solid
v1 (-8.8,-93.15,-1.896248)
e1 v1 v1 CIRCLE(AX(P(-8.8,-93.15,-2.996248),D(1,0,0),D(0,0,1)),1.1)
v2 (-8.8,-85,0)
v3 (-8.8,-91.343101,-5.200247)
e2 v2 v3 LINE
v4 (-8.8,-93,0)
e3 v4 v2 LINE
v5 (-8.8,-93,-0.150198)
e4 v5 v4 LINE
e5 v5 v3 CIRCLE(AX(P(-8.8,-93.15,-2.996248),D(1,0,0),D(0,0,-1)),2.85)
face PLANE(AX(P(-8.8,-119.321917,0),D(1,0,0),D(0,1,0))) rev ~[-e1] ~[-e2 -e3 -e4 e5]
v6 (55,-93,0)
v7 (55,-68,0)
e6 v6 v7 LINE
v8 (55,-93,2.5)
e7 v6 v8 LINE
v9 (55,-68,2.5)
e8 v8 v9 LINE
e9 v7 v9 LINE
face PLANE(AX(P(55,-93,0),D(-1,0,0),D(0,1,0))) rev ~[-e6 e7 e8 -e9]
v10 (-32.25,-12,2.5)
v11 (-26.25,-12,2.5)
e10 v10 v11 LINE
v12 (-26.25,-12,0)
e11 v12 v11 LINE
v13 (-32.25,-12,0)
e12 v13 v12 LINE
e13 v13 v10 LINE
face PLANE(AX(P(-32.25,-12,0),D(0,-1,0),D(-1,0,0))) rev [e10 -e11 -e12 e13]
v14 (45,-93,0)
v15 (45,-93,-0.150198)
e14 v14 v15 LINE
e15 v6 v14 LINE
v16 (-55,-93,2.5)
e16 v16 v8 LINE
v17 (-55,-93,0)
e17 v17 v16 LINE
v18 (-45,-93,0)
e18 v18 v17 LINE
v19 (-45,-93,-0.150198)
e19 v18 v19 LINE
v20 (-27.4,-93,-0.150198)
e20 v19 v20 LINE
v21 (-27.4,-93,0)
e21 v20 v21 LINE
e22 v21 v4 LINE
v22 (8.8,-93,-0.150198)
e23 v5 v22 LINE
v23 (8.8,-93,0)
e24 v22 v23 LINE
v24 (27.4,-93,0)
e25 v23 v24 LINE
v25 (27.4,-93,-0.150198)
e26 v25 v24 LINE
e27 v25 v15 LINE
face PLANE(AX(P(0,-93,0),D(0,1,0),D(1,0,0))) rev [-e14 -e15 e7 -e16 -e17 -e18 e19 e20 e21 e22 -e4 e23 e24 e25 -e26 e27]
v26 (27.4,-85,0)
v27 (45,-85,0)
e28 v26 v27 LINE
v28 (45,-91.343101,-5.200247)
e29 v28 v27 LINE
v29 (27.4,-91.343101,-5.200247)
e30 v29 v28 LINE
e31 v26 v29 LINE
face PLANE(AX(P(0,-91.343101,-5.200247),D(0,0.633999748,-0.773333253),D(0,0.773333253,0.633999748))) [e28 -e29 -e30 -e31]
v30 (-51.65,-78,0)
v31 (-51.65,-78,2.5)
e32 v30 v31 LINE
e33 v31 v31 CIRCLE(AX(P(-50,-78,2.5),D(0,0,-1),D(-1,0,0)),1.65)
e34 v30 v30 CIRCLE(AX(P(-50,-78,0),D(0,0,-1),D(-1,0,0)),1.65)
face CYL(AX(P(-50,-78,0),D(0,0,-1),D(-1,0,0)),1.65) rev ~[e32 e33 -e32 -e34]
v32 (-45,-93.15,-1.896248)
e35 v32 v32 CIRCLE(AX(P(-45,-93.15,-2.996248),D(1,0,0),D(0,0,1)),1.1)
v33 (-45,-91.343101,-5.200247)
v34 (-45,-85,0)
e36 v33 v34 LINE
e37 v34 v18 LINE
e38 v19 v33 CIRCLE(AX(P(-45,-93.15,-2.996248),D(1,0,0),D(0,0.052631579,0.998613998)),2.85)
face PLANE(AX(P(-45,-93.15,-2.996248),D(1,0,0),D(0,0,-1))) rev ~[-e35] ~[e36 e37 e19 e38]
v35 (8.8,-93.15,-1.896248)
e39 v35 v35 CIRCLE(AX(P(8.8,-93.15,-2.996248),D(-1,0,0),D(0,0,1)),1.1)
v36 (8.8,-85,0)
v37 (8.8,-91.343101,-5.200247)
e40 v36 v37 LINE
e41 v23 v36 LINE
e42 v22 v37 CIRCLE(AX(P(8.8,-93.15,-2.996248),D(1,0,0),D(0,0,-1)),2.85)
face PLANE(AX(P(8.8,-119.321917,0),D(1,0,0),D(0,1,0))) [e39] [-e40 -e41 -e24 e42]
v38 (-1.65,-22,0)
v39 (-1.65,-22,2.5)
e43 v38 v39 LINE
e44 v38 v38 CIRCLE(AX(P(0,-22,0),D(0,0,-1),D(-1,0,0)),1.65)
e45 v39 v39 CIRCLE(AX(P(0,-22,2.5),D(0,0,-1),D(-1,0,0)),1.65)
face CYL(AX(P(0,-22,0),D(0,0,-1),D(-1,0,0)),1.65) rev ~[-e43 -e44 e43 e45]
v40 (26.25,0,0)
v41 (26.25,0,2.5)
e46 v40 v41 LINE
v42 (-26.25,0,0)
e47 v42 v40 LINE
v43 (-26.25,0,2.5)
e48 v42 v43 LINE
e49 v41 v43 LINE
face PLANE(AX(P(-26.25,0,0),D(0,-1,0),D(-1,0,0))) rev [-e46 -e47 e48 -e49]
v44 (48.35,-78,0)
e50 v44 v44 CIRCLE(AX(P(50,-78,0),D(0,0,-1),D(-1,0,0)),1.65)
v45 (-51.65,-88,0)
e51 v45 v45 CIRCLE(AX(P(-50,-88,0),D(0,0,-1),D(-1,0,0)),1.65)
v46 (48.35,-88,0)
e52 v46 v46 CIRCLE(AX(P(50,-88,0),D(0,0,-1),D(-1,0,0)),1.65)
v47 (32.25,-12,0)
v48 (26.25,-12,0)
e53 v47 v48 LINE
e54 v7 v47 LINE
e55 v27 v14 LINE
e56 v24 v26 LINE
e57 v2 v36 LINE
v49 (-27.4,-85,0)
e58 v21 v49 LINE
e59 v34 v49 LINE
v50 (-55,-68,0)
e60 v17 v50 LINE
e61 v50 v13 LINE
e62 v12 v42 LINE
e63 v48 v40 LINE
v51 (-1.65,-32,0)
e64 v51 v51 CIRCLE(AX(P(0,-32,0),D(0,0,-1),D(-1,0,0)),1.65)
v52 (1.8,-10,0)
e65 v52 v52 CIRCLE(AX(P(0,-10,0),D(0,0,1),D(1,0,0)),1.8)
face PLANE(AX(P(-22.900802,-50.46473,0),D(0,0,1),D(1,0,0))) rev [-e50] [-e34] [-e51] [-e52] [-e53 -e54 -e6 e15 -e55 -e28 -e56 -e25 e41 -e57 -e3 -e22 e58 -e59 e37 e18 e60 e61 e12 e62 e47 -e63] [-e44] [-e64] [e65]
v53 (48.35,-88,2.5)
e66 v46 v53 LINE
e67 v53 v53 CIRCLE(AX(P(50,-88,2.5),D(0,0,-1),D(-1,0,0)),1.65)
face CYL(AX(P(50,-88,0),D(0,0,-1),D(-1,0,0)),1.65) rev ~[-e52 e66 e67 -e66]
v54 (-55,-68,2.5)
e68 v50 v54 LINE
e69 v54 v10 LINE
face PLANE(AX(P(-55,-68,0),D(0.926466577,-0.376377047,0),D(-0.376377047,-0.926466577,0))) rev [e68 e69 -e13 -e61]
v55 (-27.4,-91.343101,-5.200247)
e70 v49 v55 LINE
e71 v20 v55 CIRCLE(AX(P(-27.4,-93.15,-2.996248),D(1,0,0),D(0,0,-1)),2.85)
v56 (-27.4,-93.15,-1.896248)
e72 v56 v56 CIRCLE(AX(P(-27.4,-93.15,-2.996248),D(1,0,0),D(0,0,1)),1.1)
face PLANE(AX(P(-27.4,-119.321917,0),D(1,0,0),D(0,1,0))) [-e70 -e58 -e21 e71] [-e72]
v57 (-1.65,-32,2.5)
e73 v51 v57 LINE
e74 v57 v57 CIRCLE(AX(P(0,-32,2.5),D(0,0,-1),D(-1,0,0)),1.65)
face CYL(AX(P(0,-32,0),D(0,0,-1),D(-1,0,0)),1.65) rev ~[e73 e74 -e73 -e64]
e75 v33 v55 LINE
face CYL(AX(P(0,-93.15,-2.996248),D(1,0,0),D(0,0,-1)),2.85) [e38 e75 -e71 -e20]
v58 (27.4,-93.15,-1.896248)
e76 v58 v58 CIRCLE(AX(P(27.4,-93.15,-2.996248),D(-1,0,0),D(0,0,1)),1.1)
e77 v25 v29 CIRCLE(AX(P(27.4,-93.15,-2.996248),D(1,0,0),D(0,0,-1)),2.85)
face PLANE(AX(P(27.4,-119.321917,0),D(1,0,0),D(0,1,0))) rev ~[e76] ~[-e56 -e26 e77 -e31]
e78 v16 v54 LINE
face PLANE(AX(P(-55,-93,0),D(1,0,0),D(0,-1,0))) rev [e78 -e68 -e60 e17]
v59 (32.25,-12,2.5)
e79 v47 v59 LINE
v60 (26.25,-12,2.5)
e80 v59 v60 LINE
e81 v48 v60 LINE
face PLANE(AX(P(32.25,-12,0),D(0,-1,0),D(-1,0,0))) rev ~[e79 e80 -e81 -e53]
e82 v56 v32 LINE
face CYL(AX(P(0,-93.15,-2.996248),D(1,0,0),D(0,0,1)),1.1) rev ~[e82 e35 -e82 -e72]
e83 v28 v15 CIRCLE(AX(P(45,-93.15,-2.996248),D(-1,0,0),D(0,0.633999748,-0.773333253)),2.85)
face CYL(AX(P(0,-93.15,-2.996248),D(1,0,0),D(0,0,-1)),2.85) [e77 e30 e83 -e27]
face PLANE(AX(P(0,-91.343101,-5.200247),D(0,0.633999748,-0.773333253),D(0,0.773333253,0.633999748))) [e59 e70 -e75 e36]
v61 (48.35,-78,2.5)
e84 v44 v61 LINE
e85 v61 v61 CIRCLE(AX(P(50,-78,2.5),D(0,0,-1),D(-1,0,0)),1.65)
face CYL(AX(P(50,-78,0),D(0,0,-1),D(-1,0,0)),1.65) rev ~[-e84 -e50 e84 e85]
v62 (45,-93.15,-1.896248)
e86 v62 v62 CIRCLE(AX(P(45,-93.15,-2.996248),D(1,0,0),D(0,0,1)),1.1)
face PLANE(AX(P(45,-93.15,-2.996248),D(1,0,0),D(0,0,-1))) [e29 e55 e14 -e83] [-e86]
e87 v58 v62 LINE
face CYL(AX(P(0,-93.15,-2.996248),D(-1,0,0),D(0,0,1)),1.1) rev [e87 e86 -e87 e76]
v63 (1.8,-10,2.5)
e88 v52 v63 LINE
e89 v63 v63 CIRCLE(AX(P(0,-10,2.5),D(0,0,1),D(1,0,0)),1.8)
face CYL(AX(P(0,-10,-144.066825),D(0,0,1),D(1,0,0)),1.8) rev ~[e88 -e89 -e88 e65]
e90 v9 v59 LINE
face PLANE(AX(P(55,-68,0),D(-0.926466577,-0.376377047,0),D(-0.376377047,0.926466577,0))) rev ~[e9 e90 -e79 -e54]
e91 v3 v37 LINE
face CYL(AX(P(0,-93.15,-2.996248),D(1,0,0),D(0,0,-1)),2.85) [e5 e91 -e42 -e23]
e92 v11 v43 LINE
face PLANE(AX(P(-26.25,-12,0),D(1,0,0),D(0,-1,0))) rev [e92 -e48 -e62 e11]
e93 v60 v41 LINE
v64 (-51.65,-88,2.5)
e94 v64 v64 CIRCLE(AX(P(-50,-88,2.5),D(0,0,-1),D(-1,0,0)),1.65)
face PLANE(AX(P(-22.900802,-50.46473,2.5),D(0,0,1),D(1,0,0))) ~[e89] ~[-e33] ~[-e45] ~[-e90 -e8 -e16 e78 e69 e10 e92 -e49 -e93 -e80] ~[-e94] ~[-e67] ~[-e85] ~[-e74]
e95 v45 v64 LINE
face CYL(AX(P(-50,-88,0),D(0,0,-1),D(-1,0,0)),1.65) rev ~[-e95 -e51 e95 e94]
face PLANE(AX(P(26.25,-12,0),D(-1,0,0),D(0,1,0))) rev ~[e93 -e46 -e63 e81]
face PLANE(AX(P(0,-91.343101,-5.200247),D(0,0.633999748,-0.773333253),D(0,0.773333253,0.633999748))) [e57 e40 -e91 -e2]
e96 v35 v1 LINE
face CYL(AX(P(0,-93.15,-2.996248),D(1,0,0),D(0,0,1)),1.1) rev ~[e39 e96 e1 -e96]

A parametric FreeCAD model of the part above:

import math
import FreeCAD as App
import Part
import Sketcher
from FreeCAD import Vector
Q = App.Units.Quantity

doc = App.newDocument("Part")
body = doc.addObject("PartDesign::Body", "Body")

# Sketch on XY plane
sketch1 = body.newObject("Sketcher::SketchObject", "Sketch")
sketch1.AttachmentSupport = (doc.getObject("XY_Plane"), [""])
sketch1.MapMode = "FlatFace"
sketch1.addGeometry([
    Part.LineSegment(Vector(55, -68, 0), Vector(32, -12, 0)),  # 0
    Part.LineSegment(Vector(32, -12, 0), Vector(26, -12, 0)),  # 1
    Part.LineSegment(Vector(26, -12, 0), Vector(26, 0, 0)),  # 2
    Part.LineSegment(Vector(26, 0, 0), Vector(0, 0, 0)),  # 3
    Part.LineSegment(Vector(0, 0, 0), Vector(0, -93, 0)),  # 4
    Part.LineSegment(Vector(0, -93, 0), Vector(55, -93, 0)),  # 5
    Part.LineSegment(Vector(55, -93, 0), Vector(55, -68, 0)),  # 6
], False)
sketch1.addConstraint([
    Sketcher.Constraint("Coincident", 0, 2, 1, 1),
    Sketcher.Constraint("Coincident", 1, 2, 2, 1),
    Sketcher.Constraint("Coincident", 2, 2, 3, 1),
    Sketcher.Constraint("Coincident", 3, 2, 4, 1),
    Sketcher.Constraint("Coincident", 4, 2, 5, 1),
    Sketcher.Constraint("Coincident", 5, 2, 6, 1),
    Sketcher.Constraint("Coincident", 6, 2, 0, 1),
    Sketcher.Constraint("Horizontal", 1),
    Sketcher.Constraint("Vertical", 2),
    Sketcher.Constraint("Horizontal", 3),
    Sketcher.Constraint("Vertical", 4),
    Sketcher.Constraint("Horizontal", 5),
    Sketcher.Constraint("Vertical", 6),
    Sketcher.Constraint("Coincident", 3, 2, -1, 1),
    Sketcher.Constraint("DistanceX", 1, 2, 1, 1, Q("6 mm")),
    Sketcher.Constraint("DistanceX", 5, 1, 5, 2, Q("55 mm")),
    Sketcher.Constraint("DistanceY", 2, 1, 2, 2, Q("12 mm")),
    Sketcher.Constraint("DistanceY", 4, 2, 4, 1, Q("93 mm")),
    Sketcher.Constraint("DistanceY", 6, 1, 6, 2, Q("25 mm")),
    Sketcher.Constraint("DistanceX", 3, 2, 3, 1, Q("26.25 mm")),
])
pad1 = body.newObject("PartDesign::Pad", "Pad")
pad1.Profile = sketch1
pad1.Length = 2.5
doc.recompute()

mirrored = body.newObject("PartDesign::Mirrored", "Mirrored")
mirrored.Originals = [pad1]
mirrored.MirrorPlane = (doc.getObject("YZ_Plane"), [""])
body.Tip = mirrored

# Sketch on XY plane
sketch2 = body.newObject("Sketcher::SketchObject", "Sketch001")
sketch2.AttachmentSupport = (doc.getObject("XY_Plane"), [""])
sketch2.MapMode = "FlatFace"
sketch2.addGeometry(Part.Circle(Vector(0, -10, 0), Vector(0, 0, 1), 1.8), False)
sketch2.addConstraint([
    Sketcher.Constraint("PointOnObject", 0, 3, -2),
    Sketcher.Constraint("Diameter", 0, Q("3.6 mm")),
    Sketcher.Constraint("DistanceY", 0, 3, -1, 1, Q("10 mm")),
])
doc.recompute()
hole = body.newObject("PartDesign::Hole", "Hole")
hole.Profile = sketch2
hole.ThreadType = "None"
hole.Diameter = 3.6
hole.DepthType = "ThroughAll"
hole.Reversed = True

# Sketch on YZ plane
sketch3 = body.newObject("Sketcher::SketchObject", "Sketch002")
sketch3.AttachmentSupport = (doc.getObject("YZ_Plane"), [""])
sketch3.MapMode = "FlatFace"
sketch3.addGeometry([
    Part.LineSegment(Vector(-91.34, -5.2, 0), Vector(-85, 0, 0)),  # 0
    Part.LineSegment(Vector(-85, 0, 0), Vector(-93, 0, 0)),  # 1
    Part.LineSegment(Vector(-93, 0, 0), Vector(-93, -0.15, 0)),  # 2
    Part.ArcOfCircle(Part.Circle(Vector(-93.15, -3, 0), Vector(0, 0, 1), 2.85), math.radians(87), math.radians(309)),  # 3
    Part.Circle(Vector(-93.15, -3, 0), Vector(0, 0, 1), 1.1),  # 4
], False)
sketch3.addConstraint([
    Sketcher.Constraint("Coincident", 0, 2, 1, 1),
    Sketcher.Constraint("Coincident", 1, 2, 2, 1),
    Sketcher.Constraint("Coincident", 2, 2, 3, 1),
    Sketcher.Constraint("Tangent", 3, 2, 0, 1),
    Sketcher.Constraint("Horizontal", 1),
    Sketcher.Constraint("Vertical", 2),
    Sketcher.Constraint("Coincident", 4, 3, 3, 3),
    Sketcher.Constraint("PointOnObject", 0, 2, -1),
    Sketcher.Constraint("Diameter", 4, Q("2.2 mm")),
    Sketcher.Constraint("DistanceX", 1, 2, 1, 1, Q("8 mm")),
    Sketcher.Constraint("Radius", 3, Q("2.85 mm")),
    Sketcher.Constraint("DistanceX", 0, 2, -1, 1, Q("85 mm")),
    Sketcher.Constraint("DistanceX", 3, 3, -1, 1, Q("93.15 mm")),
    Sketcher.Constraint("DistanceY", 3, 2, 3, 3, Q("2.204 mm")),
])
pad2 = body.newObject("PartDesign::Pad", "Pad001")
pad2.Profile = sketch3
pad2.Length = 90
pad2.Midplane = True

# Sketch on XY plane
sketch4 = body.newObject("Sketcher::SketchObject", "Sketch003")
sketch4.AttachmentSupport = (doc.getObject("XY_Plane"), [""])
sketch4.MapMode = "FlatFace"
sketch4.addGeometry([
    Part.LineSegment(Vector(27, -85, 0), Vector(27, -119, 0)),  # 0
    Part.LineSegment(Vector(27, -119, 0), Vector(9, -119, 0)),  # 1
    Part.LineSegment(Vector(9, -119, 0), Vector(9, -85, 0)),  # 2
    Part.LineSegment(Vector(9, -85, 0), Vector(27, -85, 0)),  # 3
    Part.LineSegment(Vector(-9, -85, 0), Vector(-9, -119, 0)),  # 4
    Part.LineSegment(Vector(-9, -119, 0), Vector(-27, -119, 0)),  # 5
    Part.LineSegment(Vector(-27, -119, 0), Vector(-27, -85, 0)),  # 6
    Part.LineSegment(Vector(-27, -85, 0), Vector(-9, -85, 0)),  # 7
], False)
sketch4.addConstraint([
    Sketcher.Constraint("Coincident", 0, 2, 1, 1),
    Sketcher.Constraint("Coincident", 1, 2, 2, 1),
    Sketcher.Constraint("Coincident", 2, 2, 3, 1),
    Sketcher.Constraint("Coincident", 3, 2, 0, 1),
    Sketcher.Constraint("Coincident", 4, 2, 5, 1),
    Sketcher.Constraint("Coincident", 5, 2, 6, 1),
    Sketcher.Constraint("Coincident", 6, 2, 7, 1),
    Sketcher.Constraint("Coincident", 7, 2, 4, 1),
    Sketcher.Constraint("Vertical", 0),
    Sketcher.Constraint("Horizontal", 1),
    Sketcher.Constraint("Vertical", 2),
    Sketcher.Constraint("Horizontal", 3),
    Sketcher.Constraint("Vertical", 4),
    Sketcher.Constraint("Horizontal", 5),
    Sketcher.Constraint("Vertical", 6),
    Sketcher.Constraint("Horizontal", 7),
    Sketcher.Constraint("Symmetric", 1, 2, 4, 2, -2),
    Sketcher.Constraint("Symmetric", 3, 2, 6, 2, -2),
    Sketcher.Constraint("DistanceX", 1, 2, 1, 1, Q("18.6 mm")),
    Sketcher.Constraint("DistanceY", 2, 2, -1, 1, Q("85 mm")),
    Sketcher.Constraint("DistanceX", -1, 1, 0, 2, Q("27.4 mm")),
    Sketcher.Constraint("DistanceY", 0, 2, 0, 1, Q("34.321917 mm")),
])
pocket1 = body.newObject("PartDesign::Pocket", "Pocket")
pocket1.Profile = sketch4
pocket1.Length = 23

# Sketch on XY plane
sketch5 = body.newObject("Sketcher::SketchObject", "Sketch004")
sketch5.AttachmentSupport = (doc.getObject("XY_Plane"), [""])
sketch5.MapMode = "FlatFace"
sketch5.addGeometry([
    Part.Circle(Vector(50, -88, 0), Vector(0, 0, 1), 1.6),
    Part.Circle(Vector(50, -78, 0), Vector(0, 0, 1), 1.6),
    Part.Circle(Vector(-50, -88, 0), Vector(0, 0, 1), 1.6),
    Part.Circle(Vector(-50, -78, 0), Vector(0, 0, 1), 1.6),
], False)
sketch5.addConstraint([
    Sketcher.Constraint("Equal", 0, 1),
    Sketcher.Constraint("Equal", 1, 2),
    Sketcher.Constraint("Equal", 2, 3),
    Sketcher.Constraint("Symmetric", 0, 3, 2, 3, -2),
    Sketcher.Constraint("Symmetric", 1, 3, 3, 3, -2),
    Sketcher.Constraint("Vertical", 0, 3, 1, 3),
    Sketcher.Constraint("Diameter", 0, Q("3.3 mm")),
    Sketcher.Constraint("DistanceX", -1, 1, 0, 3, Q("50 mm")),
    Sketcher.Constraint("DistanceY", 0, 3, -1, 1, Q("88 mm")),
    Sketcher.Constraint("DistanceY", 1, 3, -1, 1, Q("78 mm")),
])
pocket2 = body.newObject("PartDesign::Pocket", "Pocket001")
pocket2.Profile = sketch5
pocket2.Length = 10
pocket2.Reversed = True

# Sketch on XY plane
sketch6 = body.newObject("Sketcher::SketchObject", "Sketch005")
sketch6.AttachmentSupport = (doc.getObject("XY_Plane"), [""])
sketch6.MapMode = "FlatFace"
sketch6.addGeometry([
    Part.Circle(Vector(0, -22, 0), Vector(0, 0, 1), 1.6),
    Part.Circle(Vector(0, -32, 0), Vector(0, 0, 1), 1.6),
], False)
sketch6.addConstraint([
    Sketcher.Constraint("Equal", 0, 1),
    Sketcher.Constraint("PointOnObject", 0, 3, -2),
    Sketcher.Constraint("PointOnObject", 1, 3, -2),
    Sketcher.Constraint("Diameter", 0, Q("3.3 mm")),
    Sketcher.Constraint("DistanceY", 0, 3, -1, 1, Q("22 mm")),
    Sketcher.Constraint("DistanceY", 1, 3, -1, 1, Q("32 mm")),
])
pocket3 = body.newObject("PartDesign::Pocket", "Pocket002")
pocket3.Profile = sketch6
pocket3.Length = 10
pocket3.Reversed = True

doc.recompute()
